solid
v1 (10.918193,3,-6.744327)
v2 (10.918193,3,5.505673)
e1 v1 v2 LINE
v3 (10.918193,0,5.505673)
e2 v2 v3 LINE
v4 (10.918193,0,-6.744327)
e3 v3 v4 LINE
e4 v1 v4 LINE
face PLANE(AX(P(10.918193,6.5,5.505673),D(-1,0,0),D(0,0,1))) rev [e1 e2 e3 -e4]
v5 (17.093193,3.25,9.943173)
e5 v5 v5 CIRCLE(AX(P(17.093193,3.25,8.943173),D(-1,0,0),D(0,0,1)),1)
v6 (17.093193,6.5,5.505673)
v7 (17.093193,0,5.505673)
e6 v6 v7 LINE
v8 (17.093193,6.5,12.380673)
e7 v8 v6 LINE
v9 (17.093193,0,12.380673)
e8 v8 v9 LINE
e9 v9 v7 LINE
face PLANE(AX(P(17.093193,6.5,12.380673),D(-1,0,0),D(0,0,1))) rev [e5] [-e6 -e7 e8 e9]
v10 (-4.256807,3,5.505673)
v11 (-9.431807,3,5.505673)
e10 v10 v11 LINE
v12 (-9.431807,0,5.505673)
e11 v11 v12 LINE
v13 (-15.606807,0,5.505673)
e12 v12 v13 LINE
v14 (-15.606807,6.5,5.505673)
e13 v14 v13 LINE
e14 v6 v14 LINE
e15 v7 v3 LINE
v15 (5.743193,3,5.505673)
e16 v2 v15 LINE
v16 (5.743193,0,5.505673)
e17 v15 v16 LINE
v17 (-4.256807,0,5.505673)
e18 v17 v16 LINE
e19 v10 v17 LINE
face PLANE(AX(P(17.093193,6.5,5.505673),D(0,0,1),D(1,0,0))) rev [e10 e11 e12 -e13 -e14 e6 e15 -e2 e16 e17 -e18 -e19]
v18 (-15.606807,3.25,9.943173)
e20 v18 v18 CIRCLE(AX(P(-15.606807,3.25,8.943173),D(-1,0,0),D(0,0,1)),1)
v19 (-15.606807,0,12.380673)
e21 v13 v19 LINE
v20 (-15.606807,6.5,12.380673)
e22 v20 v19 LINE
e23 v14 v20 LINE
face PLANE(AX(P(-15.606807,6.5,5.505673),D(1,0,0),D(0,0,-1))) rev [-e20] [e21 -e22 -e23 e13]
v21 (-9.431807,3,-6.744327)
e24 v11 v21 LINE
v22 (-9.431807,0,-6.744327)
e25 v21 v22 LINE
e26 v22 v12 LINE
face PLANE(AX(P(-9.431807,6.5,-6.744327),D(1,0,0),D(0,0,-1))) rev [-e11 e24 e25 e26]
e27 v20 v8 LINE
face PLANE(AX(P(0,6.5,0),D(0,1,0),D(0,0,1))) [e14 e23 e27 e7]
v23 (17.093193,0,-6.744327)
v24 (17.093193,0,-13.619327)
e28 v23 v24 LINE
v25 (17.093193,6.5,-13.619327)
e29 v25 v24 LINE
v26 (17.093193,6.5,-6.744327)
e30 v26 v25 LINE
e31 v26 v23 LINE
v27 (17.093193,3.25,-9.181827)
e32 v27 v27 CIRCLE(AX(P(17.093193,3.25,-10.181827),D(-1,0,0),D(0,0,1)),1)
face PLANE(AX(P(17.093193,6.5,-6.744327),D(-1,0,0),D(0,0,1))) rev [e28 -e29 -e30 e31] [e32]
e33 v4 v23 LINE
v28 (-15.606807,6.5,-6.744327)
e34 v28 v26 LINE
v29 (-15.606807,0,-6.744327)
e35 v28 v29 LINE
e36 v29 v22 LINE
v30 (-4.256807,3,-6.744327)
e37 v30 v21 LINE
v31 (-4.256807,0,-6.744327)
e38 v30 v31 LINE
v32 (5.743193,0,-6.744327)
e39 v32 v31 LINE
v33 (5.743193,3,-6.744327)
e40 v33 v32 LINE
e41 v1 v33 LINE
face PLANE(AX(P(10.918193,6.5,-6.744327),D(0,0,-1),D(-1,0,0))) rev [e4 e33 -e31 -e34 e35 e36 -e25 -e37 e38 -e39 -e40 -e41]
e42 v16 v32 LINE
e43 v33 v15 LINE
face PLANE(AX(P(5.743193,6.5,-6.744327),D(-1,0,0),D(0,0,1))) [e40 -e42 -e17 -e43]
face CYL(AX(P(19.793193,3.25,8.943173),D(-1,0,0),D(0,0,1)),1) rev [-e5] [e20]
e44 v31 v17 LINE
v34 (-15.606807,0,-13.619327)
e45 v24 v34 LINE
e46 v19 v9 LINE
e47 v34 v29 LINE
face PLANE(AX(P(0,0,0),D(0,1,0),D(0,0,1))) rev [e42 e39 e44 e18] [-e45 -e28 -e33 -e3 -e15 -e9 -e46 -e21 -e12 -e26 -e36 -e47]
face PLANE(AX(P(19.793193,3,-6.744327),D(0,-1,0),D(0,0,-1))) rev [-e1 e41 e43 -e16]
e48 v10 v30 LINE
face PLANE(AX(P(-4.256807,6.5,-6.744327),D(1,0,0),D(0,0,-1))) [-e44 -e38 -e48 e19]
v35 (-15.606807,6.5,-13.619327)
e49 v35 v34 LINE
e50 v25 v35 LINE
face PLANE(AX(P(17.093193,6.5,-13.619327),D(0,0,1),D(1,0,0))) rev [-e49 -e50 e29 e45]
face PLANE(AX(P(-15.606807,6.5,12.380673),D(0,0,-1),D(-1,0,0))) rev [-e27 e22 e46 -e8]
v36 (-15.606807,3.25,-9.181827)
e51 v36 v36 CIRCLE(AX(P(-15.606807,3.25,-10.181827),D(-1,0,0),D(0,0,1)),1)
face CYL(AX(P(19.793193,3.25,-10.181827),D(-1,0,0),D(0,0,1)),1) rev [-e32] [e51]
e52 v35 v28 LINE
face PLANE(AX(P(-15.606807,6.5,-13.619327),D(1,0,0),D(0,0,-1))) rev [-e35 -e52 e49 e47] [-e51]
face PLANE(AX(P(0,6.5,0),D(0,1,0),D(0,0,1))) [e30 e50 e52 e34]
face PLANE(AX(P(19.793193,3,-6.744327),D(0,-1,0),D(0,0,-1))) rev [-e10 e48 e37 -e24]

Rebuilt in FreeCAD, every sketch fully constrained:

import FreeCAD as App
import Part
import Sketcher
from FreeCAD import Vector


def add_polygon(sketch, points):
    """Adds a closed chain of lines whose ends are joined by coincident constraints."""
    first, n = sketch.GeometryCount, len(points)
    for a, b in zip(points, points[1:] + points[:1]):
        sketch.addGeometry(Part.LineSegment(App.Vector(*a, 0), App.Vector(*b, 0)), False)
    for i in range(n):
        sketch.addConstraint(Sketcher.Constraint("Coincident", first + i, 2, first + (i + 1) % n, 1))

doc = App.newDocument("Part")
body = doc.addObject("PartDesign::Body", "Body")

sketch1 = doc.addObject("Sketcher::SketchObject", "Sketch")
body.addObject(sketch1)
sketch1.AttachmentSupport = (doc.XZ_Plane, [""])
sketch1.MapMode = "FlatFace"
add_polygon(sketch1, [(-16, -14), (-16, -7), (-9, -7), (-9, 6), (-16, 6), (-16, 12), (17, 12), (17, 6), (11, 6), (11, -7), (17, -7), (17, -14)])
add_polygon(sketch1, [(6, 6), (-4, 6), (-4, -7), (6, -7)])
sketch1.addConstraint(Sketcher.Constraint("Vertical", 0))
sketch1.addConstraint(Sketcher.Constraint("Horizontal", 1))
sketch1.addConstraint(Sketcher.Constraint("Vertical", 2))
sketch1.addConstraint(Sketcher.Constraint("Horizontal", 3))
sketch1.addConstraint(Sketcher.Constraint("Vertical", 4))
sketch1.addConstraint(Sketcher.Constraint("Horizontal", 5))
sketch1.addConstraint(Sketcher.Constraint("Vertical", 6))
sketch1.addConstraint(Sketcher.Constraint("Horizontal", 7))
sketch1.addConstraint(Sketcher.Constraint("Vertical", 8))
sketch1.addConstraint(Sketcher.Constraint("Horizontal", 9))
sketch1.addConstraint(Sketcher.Constraint("Vertical", 10))
sketch1.addConstraint(Sketcher.Constraint("Horizontal", 11))
sketch1.addConstraint(Sketcher.Constraint("Horizontal", 12))
sketch1.addConstraint(Sketcher.Constraint("Vertical", 13))
sketch1.addConstraint(Sketcher.Constraint("Horizontal", 14))
sketch1.addConstraint(Sketcher.Constraint("Vertical", 15))
sketch1.addConstraint(Sketcher.Constraint("Horizontal", 3, 2, 6, 2))
sketch1.addConstraint(Sketcher.Constraint("Horizontal", 1, 2, 8, 2))
sketch1.addConstraint(Sketcher.Constraint("Horizontal", 7, 2, 12, 2))
sketch1.addConstraint(Sketcher.Constraint("Horizontal", 9, 2, 13, 2))
sketch1.addConstraint(Sketcher.Constraint("Vertical", 0, 2, 3, 2))
sketch1.addConstraint(Sketcher.Constraint("Vertical", 6, 2, 9, 2))
sketch1.addConstraint(Sketcher.Constraint("Equal", 3, 7))
sketch1.addConstraint(Sketcher.Constraint("Equal", 0, 4))
sketch1.addConstraint(Sketcher.Constraint("DistanceX", 12, 2, 12, 1, 10.0))
sketch1.addConstraint(Sketcher.Constraint("DistanceX", 5, 1, 5, 2, 32.700001))
sketch1.addConstraint(Sketcher.Constraint("DistanceY", 10, 2, 5, 2, 26.0))
sketch1.addConstraint(Sketcher.Constraint("DistanceY", 2, 1, 2, 2, 12.25))
sketch1.addConstraint(Sketcher.Constraint("DistanceX", 1, 1, 1, 2, 6.175))
sketch1.addConstraint(Sketcher.Constraint("DistanceX", 3, 2, 12, 2, 11.35))
sketch1.addConstraint(Sketcher.Constraint("DistanceX", 0, 2, -1, 1, 15.606807))
sketch1.addConstraint(Sketcher.Constraint("DistanceY", 0, 2, -1, 1, 6.744327))
pad1 = doc.addObject("PartDesign::Pad", "Pad")
body.addObject(pad1)
pad1.Profile = sketch1
pad1.Length = 6.5
pad1.Reversed = True

sketch2 = doc.addObject("Sketcher::SketchObject", "Sketch001")
body.addObject(sketch2)
sketch2.AttachmentSupport = (doc.YZ_Plane, [""])
sketch2.MapMode = "FlatFace"
sketch2.AttachmentOffset = App.Placement(Vector(0, 0, -15.606807), App.Rotation())
sketch2.addGeometry(Part.Circle(Vector(3.2, -10.2, 0), Vector(0, 0, 1), 1), False)
sketch2.addGeometry(Part.Circle(Vector(3.2, 8.9, 0), Vector(0, 0, 1), 1), False)
add_polygon(sketch2, [(6.5, -6.7), (3, -6.7), (3, 5.5), (6.5, 5.5)])
sketch2.addConstraint(Sketcher.Constraint("Horizontal", 2))
sketch2.addConstraint(Sketcher.Constraint("Vertical", 3))
sketch2.addConstraint(Sketcher.Constraint("Horizontal", 4))
sketch2.addConstraint(Sketcher.Constraint("Vertical", 5))
sketch2.addConstraint(Sketcher.Constraint("Equal", 0, 1))
sketch2.addConstraint(Sketcher.Constraint("Vertical", 0, 3, 1, 3))
sketch2.addConstraint(Sketcher.Constraint("Diameter", 0, 2.0))
sketch2.addConstraint(Sketcher.Constraint("DistanceX", 2, 2, 2, 1, 3.5))
sketch2.addConstraint(Sketcher.Constraint("DistanceX", -1, 1, 2, 2, 3.0))
sketch2.addConstraint(Sketcher.Constraint("DistanceY", 3, 1, 3, 2, 12.25))
sketch2.addConstraint(Sketcher.Constraint("DistanceX", -1, 1, 0, 3, 3.25))
sketch2.addConstraint(Sketcher.Constraint("DistanceY", 0, 3, 1, 3, 19.125))
sketch2.addConstraint(Sketcher.Constraint("DistanceY", 0, 3, 2, 2, 3.4375))
sketch2.addConstraint(Sketcher.Constraint("DistanceY", 0, 3, -1, 1, 10.181827))
pocket1 = doc.addObject("PartDesign::Pocket", "Pocket")
body.addObject(pocket1)
pocket1.Profile = sketch2
pocket1.Length = 35.4
pocket1.Reversed = True

doc.recompute()
